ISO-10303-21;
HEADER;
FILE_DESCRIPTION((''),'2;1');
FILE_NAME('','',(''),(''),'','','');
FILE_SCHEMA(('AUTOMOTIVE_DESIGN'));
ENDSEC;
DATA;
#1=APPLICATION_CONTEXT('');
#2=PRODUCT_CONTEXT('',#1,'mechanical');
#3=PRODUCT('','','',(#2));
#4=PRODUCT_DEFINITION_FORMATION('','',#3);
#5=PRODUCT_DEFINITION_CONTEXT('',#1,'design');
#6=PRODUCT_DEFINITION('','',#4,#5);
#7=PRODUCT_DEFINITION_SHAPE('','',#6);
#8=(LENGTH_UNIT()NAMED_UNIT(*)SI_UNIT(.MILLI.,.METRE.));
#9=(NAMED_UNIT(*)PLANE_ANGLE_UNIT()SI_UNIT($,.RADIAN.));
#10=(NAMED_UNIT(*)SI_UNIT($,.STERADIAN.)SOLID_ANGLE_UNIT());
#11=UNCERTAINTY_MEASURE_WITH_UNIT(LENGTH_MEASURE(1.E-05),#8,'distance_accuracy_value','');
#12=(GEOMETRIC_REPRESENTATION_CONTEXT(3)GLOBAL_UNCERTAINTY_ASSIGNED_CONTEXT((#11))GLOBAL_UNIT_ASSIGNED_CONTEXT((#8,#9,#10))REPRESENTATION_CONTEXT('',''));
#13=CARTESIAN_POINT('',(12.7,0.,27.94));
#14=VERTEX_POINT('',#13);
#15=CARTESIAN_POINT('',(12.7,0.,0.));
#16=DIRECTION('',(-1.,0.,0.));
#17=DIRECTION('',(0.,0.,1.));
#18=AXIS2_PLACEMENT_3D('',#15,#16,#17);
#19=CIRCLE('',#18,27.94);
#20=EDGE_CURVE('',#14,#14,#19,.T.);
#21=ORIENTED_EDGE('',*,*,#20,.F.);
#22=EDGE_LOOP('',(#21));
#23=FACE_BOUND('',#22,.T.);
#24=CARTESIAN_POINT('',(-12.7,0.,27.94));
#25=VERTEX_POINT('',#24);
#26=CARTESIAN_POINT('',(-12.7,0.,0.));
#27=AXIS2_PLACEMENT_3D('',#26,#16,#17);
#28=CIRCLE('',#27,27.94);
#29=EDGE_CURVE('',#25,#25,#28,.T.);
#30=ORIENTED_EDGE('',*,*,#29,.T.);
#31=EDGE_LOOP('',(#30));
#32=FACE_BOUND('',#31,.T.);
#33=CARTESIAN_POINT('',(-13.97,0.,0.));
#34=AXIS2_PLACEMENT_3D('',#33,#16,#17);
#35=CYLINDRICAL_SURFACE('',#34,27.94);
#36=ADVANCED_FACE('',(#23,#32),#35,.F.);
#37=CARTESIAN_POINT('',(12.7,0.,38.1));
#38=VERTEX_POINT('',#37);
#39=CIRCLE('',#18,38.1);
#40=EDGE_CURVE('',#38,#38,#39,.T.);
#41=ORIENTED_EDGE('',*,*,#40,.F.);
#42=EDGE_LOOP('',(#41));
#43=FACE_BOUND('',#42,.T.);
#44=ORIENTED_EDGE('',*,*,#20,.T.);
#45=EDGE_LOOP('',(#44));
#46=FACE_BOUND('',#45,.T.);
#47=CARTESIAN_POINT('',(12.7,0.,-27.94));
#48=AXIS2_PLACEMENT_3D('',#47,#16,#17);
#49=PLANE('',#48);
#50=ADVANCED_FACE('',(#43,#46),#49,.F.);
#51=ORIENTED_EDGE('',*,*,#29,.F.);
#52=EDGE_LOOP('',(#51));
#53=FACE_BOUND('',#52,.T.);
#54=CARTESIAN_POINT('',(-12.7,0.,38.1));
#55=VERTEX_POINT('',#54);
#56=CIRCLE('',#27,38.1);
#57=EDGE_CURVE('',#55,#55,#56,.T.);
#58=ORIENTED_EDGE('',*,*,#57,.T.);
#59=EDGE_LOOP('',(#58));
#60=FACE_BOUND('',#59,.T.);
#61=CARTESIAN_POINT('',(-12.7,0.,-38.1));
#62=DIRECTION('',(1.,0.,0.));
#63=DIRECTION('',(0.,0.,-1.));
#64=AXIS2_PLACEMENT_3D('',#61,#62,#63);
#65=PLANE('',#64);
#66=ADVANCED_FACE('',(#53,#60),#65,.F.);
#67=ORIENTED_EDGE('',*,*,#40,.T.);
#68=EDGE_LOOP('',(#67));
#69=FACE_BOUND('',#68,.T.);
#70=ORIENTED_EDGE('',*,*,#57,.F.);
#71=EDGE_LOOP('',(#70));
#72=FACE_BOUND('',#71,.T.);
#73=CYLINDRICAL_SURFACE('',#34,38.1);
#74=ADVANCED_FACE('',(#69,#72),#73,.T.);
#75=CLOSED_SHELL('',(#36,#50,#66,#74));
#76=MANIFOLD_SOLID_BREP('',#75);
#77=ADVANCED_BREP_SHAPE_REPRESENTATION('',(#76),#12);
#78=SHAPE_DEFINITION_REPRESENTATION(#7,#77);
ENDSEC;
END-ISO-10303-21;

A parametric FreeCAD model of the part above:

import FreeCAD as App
import Part
import Sketcher
Q = App.Units.Quantity

doc = App.newDocument("Part")
body = doc.addObject("PartDesign::Body", "Body")

sketch1 = doc.addObject("Sketcher::SketchObject", "Sketch")
body.addObject(sketch1)
sketch1.AttachmentSupport = (doc.XZ_Plane, [""])
sketch1.MapMode = "FlatFace"
sketch1.addGeometry(Part.LineSegment(App.Vector(-13, -38, 0), App.Vector(-13, -28, 0)), False)
sketch1.addGeometry(Part.LineSegment(App.Vector(-13, -28, 0), App.Vector(13, -28, 0)), False)
sketch1.addGeometry(Part.LineSegment(App.Vector(13, -28, 0), App.Vector(13, -38, 0)), False)
sketch1.addGeometry(Part.LineSegment(App.Vector(13, -38, 0), App.Vector(-13, -38, 0)), False)
sketch1.addConstraint(Sketcher.Constraint("Coincident", 0, 2, 1, 1))
sketch1.addConstraint(Sketcher.Constraint("Coincident", 1, 2, 2, 1))
sketch1.addConstraint(Sketcher.Constraint("Coincident", 2, 2, 3, 1))
sketch1.addConstraint(Sketcher.Constraint("Coincident", 3, 2, 0, 1))
sketch1.addConstraint(Sketcher.Constraint("Vertical", 0))
sketch1.addConstraint(Sketcher.Constraint("Horizontal", 1))
sketch1.addConstraint(Sketcher.Constraint("Vertical", 2))
sketch1.addConstraint(Sketcher.Constraint("Horizontal", 3))
sketch1.addConstraint(Sketcher.Constraint("DistanceX", 1, 1, 1, 2, Q("1 in")))
sketch1.addConstraint(Sketcher.Constraint("DistanceY", 0, 1, 0, 2, Q("0.4 in")))
sketch1.addConstraint(Sketcher.Constraint("DistanceX", 0, 2, -1, 1, Q("0.5 in")))
sketch1.addConstraint(Sketcher.Constraint("DistanceY", 0, 2, -1, 1, Q("1.1 in")))
revolution = doc.addObject("PartDesign::Revolution", "Revolution")
body.addObject(revolution)
revolution.Profile = sketch1
revolution.ReferenceAxis = (sketch1, ["H_Axis"])
revolution.Angle = 360

doc.recompute()
